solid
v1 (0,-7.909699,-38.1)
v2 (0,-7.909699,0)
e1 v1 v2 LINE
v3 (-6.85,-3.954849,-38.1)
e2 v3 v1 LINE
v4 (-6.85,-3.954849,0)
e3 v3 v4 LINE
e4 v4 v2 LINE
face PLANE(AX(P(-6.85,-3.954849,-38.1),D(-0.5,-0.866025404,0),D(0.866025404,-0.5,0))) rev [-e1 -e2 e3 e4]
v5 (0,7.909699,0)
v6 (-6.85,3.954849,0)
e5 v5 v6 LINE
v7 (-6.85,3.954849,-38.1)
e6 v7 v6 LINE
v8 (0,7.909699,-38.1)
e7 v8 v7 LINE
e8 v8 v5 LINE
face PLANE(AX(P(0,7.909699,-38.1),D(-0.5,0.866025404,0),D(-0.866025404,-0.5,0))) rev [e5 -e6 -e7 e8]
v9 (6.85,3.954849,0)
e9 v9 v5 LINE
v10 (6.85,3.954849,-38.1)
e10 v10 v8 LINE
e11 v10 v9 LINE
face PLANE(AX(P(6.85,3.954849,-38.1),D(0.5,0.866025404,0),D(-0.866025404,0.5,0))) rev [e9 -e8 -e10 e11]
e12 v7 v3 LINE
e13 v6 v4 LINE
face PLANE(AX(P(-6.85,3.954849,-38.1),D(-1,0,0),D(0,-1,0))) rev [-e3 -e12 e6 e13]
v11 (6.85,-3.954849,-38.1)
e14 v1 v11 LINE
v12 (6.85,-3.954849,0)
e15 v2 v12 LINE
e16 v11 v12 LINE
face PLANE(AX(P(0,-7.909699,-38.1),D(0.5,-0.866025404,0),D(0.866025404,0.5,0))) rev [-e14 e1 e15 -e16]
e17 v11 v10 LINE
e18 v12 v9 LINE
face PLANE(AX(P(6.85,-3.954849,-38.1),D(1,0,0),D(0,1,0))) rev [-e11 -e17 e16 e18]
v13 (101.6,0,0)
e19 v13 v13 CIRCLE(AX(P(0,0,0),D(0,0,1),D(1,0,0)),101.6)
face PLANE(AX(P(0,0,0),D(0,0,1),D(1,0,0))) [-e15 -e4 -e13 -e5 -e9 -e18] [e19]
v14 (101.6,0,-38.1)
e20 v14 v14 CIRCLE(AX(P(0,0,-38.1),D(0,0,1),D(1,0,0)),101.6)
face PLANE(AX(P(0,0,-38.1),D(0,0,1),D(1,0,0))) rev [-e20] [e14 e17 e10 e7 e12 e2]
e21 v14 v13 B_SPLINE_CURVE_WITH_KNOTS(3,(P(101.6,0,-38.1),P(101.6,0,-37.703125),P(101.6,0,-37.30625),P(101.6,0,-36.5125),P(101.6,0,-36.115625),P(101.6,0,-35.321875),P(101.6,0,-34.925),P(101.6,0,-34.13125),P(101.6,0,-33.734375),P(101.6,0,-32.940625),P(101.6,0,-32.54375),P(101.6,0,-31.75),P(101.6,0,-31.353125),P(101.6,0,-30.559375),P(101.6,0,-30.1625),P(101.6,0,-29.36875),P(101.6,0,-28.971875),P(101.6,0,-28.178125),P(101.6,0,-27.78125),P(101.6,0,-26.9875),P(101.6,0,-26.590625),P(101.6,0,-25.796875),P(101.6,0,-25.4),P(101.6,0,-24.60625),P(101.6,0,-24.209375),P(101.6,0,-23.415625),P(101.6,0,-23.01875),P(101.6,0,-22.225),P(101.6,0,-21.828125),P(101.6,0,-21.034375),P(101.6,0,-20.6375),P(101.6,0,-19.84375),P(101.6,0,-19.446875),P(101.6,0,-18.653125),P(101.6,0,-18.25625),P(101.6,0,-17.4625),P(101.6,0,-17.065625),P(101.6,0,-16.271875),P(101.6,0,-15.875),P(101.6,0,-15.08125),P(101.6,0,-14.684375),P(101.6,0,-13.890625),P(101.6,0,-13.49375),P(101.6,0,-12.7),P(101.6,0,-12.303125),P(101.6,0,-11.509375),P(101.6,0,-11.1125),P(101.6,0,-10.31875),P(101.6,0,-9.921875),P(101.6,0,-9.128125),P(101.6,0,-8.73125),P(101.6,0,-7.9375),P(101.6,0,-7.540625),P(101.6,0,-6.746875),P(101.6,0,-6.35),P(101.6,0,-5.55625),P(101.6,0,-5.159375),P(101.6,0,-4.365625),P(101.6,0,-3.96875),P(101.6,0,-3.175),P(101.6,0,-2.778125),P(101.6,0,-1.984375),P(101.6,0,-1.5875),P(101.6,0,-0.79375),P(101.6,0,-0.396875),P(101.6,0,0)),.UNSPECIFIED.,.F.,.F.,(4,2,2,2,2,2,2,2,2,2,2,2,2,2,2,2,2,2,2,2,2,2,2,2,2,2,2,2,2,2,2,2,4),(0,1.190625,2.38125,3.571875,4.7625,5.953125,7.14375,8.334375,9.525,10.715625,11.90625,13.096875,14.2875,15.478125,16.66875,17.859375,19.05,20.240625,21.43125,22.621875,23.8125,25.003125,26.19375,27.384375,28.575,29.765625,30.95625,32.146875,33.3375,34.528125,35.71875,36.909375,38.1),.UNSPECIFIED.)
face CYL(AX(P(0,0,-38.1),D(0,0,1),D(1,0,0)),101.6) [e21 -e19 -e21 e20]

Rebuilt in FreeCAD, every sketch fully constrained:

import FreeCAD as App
import Part
import Sketcher
from FreeCAD import Vector
Q = App.Units.Quantity


def add_polygon(sketch, points):
    """Adds a closed chain of lines whose ends are joined by coincident constraints."""
    first, n = sketch.GeometryCount, len(points)
    for a, b in zip(points, points[1:] + points[:1]):
        sketch.addGeometry(Part.LineSegment(App.Vector(*a, 0), App.Vector(*b, 0)), False)
    for i in range(n):
        sketch.addConstraint(Sketcher.Constraint("Coincident", first + i, 2, first + (i + 1) % n, 1))

doc = App.newDocument("Part")
body = doc.addObject("PartDesign::Body", "Body")

# Sketch on XY plane
sketch1 = body.newObject("Sketcher::SketchObject", "Sketch")
sketch1.AttachmentSupport = (doc.getObject("XY_Plane"), [""])
sketch1.MapMode = "FlatFace"
sketch1.addGeometry(Part.Circle(Vector(0, 0, 0), Vector(0, 0, 1), 102), False)  # 0
add_polygon(sketch1, [(-7, 4), (0, 8), (7, 4), (7, -4), (0, -8), (-7, -4)])  # lines 1-6
sketch1.addConstraint([
    Sketcher.Constraint("Vertical", 3),
    Sketcher.Constraint("Vertical", 6),
    Sketcher.Constraint("Coincident", 0, 3, -1, 1),
    Sketcher.Constraint("Symmetric", 1, 2, 4, 2, -1, 1),
    Sketcher.Constraint("Symmetric", 2, 2, 5, 2, -1, 1),
    Sketcher.Constraint("PointOnObject", 1, 2, -2),
    Sketcher.Constraint("Parallel", 1, 4),
    Sketcher.Constraint("Horizontal", 3, 2, 5, 2),
    Sketcher.Constraint("Diameter", 0, Q("8 in")),
    Sketcher.Constraint("Angle", 1, Q("30 deg")),
    Sketcher.Constraint("DistanceY", 3, 2, 3, 1, Q("7.909699 mm")),
    Sketcher.Constraint("Distance", 1, Q("7.909699 mm")),
])
pad1 = body.newObject("PartDesign::Pad", "Pad")
pad1.Profile = sketch1
pad1.Length = Q("1.5 in")
pad1.Reversed = True

doc.recompute()
